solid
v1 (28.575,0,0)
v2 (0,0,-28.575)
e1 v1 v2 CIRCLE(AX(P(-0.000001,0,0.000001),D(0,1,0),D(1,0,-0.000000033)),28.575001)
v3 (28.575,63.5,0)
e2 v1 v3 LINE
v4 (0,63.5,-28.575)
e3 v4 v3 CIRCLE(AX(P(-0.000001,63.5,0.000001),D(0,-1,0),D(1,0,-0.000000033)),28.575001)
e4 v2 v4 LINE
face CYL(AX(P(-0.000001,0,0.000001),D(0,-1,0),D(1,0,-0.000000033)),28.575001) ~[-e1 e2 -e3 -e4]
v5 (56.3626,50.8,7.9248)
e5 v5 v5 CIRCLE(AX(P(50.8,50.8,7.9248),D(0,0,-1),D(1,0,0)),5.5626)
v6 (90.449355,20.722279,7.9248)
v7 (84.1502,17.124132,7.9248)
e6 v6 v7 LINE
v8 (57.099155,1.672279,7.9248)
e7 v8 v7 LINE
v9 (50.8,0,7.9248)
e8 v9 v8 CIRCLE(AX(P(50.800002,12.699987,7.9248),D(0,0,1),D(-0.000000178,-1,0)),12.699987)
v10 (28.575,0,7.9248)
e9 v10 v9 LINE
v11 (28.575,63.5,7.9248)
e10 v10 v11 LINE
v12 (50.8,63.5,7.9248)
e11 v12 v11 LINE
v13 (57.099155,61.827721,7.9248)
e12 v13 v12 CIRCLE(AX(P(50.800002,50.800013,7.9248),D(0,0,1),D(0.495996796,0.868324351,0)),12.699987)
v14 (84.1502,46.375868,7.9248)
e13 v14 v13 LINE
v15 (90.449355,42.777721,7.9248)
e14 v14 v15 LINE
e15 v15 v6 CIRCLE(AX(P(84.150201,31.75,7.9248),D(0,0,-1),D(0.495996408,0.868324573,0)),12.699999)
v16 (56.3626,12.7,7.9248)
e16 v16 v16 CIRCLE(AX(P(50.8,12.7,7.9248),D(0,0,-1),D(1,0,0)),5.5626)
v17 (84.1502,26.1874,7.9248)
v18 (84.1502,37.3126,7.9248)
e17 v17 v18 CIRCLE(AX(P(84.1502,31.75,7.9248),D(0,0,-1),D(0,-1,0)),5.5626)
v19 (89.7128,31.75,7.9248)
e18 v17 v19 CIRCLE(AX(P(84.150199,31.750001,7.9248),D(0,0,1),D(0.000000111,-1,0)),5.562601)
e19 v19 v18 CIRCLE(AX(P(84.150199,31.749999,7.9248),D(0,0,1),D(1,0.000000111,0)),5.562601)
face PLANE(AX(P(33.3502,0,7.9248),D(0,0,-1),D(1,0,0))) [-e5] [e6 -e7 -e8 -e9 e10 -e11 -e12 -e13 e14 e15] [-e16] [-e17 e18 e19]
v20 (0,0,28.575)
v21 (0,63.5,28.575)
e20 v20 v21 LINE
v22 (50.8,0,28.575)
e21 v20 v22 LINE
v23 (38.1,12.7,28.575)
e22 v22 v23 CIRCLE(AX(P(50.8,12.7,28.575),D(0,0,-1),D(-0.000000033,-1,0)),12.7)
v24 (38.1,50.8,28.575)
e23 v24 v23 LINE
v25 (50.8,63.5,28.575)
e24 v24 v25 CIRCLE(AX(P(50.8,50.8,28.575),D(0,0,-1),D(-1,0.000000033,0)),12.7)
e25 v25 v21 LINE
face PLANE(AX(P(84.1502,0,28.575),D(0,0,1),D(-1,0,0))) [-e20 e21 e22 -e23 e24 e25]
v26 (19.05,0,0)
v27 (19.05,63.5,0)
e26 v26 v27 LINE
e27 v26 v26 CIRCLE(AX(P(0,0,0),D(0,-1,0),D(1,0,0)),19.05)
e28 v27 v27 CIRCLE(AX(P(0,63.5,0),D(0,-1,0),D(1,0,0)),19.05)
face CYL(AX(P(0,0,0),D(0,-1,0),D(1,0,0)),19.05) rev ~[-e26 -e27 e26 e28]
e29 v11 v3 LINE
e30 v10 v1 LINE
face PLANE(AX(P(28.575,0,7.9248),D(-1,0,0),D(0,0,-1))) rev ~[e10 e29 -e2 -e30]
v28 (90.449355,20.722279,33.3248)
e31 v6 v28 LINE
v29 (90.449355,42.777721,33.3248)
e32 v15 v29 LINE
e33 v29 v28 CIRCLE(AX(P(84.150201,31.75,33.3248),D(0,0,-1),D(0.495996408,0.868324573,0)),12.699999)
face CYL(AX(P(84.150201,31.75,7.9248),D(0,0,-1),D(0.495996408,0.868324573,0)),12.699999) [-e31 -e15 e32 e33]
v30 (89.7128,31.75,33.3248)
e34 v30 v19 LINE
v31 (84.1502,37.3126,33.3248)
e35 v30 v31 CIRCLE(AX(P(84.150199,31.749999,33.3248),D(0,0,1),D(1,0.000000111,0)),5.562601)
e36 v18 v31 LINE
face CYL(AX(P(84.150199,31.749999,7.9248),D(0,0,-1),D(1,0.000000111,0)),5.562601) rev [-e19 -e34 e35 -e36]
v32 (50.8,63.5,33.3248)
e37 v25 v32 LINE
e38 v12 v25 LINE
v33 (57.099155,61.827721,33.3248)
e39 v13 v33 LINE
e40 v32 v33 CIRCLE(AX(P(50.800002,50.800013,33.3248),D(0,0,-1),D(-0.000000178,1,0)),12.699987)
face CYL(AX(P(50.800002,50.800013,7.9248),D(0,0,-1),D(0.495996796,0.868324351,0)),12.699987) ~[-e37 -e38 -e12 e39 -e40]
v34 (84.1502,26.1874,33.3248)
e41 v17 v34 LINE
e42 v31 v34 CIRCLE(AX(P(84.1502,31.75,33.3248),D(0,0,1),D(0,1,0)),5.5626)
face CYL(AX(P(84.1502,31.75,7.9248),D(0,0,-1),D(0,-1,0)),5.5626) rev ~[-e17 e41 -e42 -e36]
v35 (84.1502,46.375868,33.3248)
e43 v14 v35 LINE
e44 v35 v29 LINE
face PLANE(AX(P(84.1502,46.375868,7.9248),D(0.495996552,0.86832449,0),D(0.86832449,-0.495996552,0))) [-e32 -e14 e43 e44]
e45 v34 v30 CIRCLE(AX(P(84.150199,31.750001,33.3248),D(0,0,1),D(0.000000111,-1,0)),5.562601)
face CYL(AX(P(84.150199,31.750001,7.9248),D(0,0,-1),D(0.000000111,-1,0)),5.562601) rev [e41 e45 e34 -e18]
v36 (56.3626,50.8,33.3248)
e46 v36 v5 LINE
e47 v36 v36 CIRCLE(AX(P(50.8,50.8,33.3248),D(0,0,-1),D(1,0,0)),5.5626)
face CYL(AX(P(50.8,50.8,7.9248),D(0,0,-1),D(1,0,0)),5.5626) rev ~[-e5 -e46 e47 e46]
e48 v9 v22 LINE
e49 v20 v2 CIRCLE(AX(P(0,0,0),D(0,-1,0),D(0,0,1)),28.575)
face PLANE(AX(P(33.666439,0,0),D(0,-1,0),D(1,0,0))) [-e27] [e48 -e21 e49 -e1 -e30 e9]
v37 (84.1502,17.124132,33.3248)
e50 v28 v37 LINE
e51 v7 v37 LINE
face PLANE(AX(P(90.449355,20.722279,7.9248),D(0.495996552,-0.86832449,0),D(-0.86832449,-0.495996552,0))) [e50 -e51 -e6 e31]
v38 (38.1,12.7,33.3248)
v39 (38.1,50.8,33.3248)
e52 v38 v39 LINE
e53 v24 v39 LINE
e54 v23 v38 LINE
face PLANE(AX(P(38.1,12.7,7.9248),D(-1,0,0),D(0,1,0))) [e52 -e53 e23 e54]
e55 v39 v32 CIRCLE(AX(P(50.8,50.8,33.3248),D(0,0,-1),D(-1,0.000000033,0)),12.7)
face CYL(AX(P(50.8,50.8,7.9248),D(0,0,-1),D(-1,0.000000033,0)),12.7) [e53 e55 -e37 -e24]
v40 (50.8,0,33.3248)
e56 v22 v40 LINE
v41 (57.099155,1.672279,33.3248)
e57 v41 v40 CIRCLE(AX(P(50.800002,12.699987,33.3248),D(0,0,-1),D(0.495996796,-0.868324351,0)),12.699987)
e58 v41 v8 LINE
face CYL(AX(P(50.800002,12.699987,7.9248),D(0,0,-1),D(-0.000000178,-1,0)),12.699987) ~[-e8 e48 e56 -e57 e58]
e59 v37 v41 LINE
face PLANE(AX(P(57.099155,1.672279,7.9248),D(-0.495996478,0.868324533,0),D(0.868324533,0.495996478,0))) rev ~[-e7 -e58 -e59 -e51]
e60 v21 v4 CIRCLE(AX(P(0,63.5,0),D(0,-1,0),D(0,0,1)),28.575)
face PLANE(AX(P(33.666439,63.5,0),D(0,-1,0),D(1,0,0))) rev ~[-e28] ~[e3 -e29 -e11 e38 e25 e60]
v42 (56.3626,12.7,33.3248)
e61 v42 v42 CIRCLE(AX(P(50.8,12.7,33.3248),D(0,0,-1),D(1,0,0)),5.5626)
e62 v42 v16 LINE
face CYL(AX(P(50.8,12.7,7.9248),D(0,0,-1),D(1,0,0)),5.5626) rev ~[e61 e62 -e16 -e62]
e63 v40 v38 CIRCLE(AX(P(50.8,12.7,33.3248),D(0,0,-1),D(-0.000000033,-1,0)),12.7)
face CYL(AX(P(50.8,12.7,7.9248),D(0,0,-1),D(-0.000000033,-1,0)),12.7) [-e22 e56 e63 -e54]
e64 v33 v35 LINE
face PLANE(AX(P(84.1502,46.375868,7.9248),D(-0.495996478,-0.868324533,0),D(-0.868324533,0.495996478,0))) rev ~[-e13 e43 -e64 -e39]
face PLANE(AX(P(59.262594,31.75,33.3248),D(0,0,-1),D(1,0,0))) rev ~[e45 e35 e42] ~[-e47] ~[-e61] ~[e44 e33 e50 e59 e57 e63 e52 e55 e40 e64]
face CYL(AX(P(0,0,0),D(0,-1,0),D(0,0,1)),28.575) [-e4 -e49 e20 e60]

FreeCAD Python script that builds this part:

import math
import FreeCAD as App
import Part
import Sketcher
Q = App.Units.Quantity

doc = App.newDocument("Part")
body = doc.addObject("PartDesign::Body", "Body")

sketch1 = body.newObject("Sketcher::SketchObject", "Sketch")
sketch1.AttachmentSupport = (doc.getObject("XZ_Plane"), [""])
sketch1.MapMode = "FlatFace"
sketch1.addGeometry([
    Part.LineSegment(App.Vector(84, 29, 0), App.Vector(0, 29, 0)),
    Part.ArcOfCircle(Part.Circle(App.Vector(0, 0, 0), App.Vector(0, 0, 1), 29), math.radians(90), math.radians(270)),
    Part.LineSegment(App.Vector(0, -29, 0), App.Vector(84, -29, 0)),
    Part.LineSegment(App.Vector(84, -29, 0), App.Vector(84, 29, 0)),
    Part.Circle(App.Vector(0, 0, 0), App.Vector(0, 0, 1), 19),
], False)
sketch1.addConstraint([
    Sketcher.Constraint("Tangent", 0, 2, 1, 1),
    Sketcher.Constraint("Tangent", 1, 2, 2, 1),
    Sketcher.Constraint("Coincident", 2, 2, 3, 1),
    Sketcher.Constraint("Coincident", 3, 2, 0, 1),
    Sketcher.Constraint("Horizontal", 0),
    Sketcher.Constraint("Horizontal", 2),
    Sketcher.Constraint("Vertical", 3),
    Sketcher.Constraint("Coincident", 1, 3, -1, 1),
    Sketcher.Constraint("Coincident", 4, 3, -1, 1),
    Sketcher.Constraint("Diameter", 4, Q("1.5 in")),
    Sketcher.Constraint("Radius", 1, Q("1.125 in")),
    Sketcher.Constraint("DistanceX", 0, 2, 0, 1, Q("3.313 in")),
])
pad1 = body.newObject("PartDesign::Pad", "Pad")
pad1.Profile = sketch1
pad1.Length = Q("2.5 in")
pad1.Reversed = True

sketch2 = body.newObject("Sketcher::SketchObject", "Sketch001")
sketch2.AttachmentSupport = (doc.getObject("XZ_Plane"), [""])
sketch2.MapMode = "FlatFace"
sketch2.addGeometry([
    Part.LineSegment(App.Vector(33, 8, 0), App.Vector(33, -29, 0)),
    Part.LineSegment(App.Vector(33, -29, 0), App.Vector(84, -29, 0)),
    Part.LineSegment(App.Vector(84, -29, 0), App.Vector(84, 8, 0)),
    Part.LineSegment(App.Vector(84, 8, 0), App.Vector(33, 8, 0)),
], False)
sketch2.addConstraint([
    Sketcher.Constraint("Coincident", 0, 2, 1, 1),
    Sketcher.Constraint("Coincident", 1, 2, 2, 1),
    Sketcher.Constraint("Coincident", 2, 2, 3, 1),
    Sketcher.Constraint("Coincident", 3, 2, 0, 1),
    Sketcher.Constraint("Vertical", 0),
    Sketcher.Constraint("Horizontal", 1),
    Sketcher.Constraint("Vertical", 2),
    Sketcher.Constraint("Horizontal", 3),
    Sketcher.Constraint("DistanceX", 1, 1, 1, 2, Q("2 in")),
    Sketcher.Constraint("DistanceY", 0, 2, 0, 1, Q("1.437 in")),
    Sketcher.Constraint("DistanceX", -1, 1, 0, 2, Q("1.313 in")),
    Sketcher.Constraint("DistanceY", 0, 2, -1, 1, Q("1.125 in")),
])
pocket1 = body.newObject("PartDesign::Pocket", "Pocket")
pocket1.Profile = sketch2
pocket1.Type = "ThroughAll"

sketch3 = body.newObject("Sketcher::SketchObject", "Sketch002")
sketch3.AttachmentSupport = (doc.getObject("XZ_Plane"), [""])
sketch3.MapMode = "FlatFace"
sketch3.addGeometry([
    Part.ArcOfCircle(Part.Circle(App.Vector(0, 0, 0), App.Vector(0, 0, 1), 28.6), math.radians(-90), math.radians(0)),
    Part.LineSegment(App.Vector(0, -28.6, 0), App.Vector(33.4, -28.6, 0)),
    Part.LineSegment(App.Vector(33.4, -28.6, 0), App.Vector(33.4, 7.9, 0)),
    Part.LineSegment(App.Vector(33.4, 7.9, 0), App.Vector(28.6, 7.9, 0)),
    Part.LineSegment(App.Vector(28.6, 7.9, 0), App.Vector(28.6, 0, 0)),
], False)
sketch3.addConstraint([
    Sketcher.Constraint("Tangent", 0, 1, 1, 1),
    Sketcher.Constraint("Coincident", 1, 2, 2, 1),
    Sketcher.Constraint("Coincident", 2, 2, 3, 1),
    Sketcher.Constraint("Coincident", 3, 2, 4, 1),
    Sketcher.Constraint("Tangent", 4, 2, 0, 2),
    Sketcher.Constraint("Horizontal", 1),
    Sketcher.Constraint("Vertical", 2),
    Sketcher.Constraint("Horizontal", 3),
    Sketcher.Constraint("Vertical", 4),
    Sketcher.Constraint("Coincident", 0, 3, -1, 1),
    Sketcher.Constraint("Radius", 0, Q("1.125 in")),
    Sketcher.Constraint("DistanceX", 1, 1, 1, 2, Q("1.313 in")),
    Sketcher.Constraint("DistanceY", 2, 1, 2, 2, Q("1.437 in")),
])
pocket2 = body.newObject("PartDesign::Pocket", "Pocket001")
pocket2.Profile = sketch3
pocket2.Type = "ThroughAll"

sketch4 = body.newObject("Sketcher::SketchObject", "Sketch003")
sketch4.AttachmentSupport = (doc.getObject("XY_Plane"), [""])
sketch4.MapMode = "FlatFace"
sketch4.AttachmentOffset = App.Placement(App.Vector(0, 0, 0.312 * 25.4), App.Rotation())
sketch4.addGeometry([
    Part.LineSegment(App.Vector(57, 62, 0), App.Vector(84, 46, 0)),
    Part.LineSegment(App.Vector(84, 46, 0), App.Vector(90, 43, 0)),
    Part.ArcOfCircle(Part.Circle(App.Vector(84, 32, 0), App.Vector(0, 0, 1), 13), math.radians(-60), math.radians(60)),
    Part.LineSegment(App.Vector(90, 21, 0), App.Vector(84, 17, 0)),
    Part.LineSegment(App.Vector(84, 17, 0), App.Vector(57, 2, 0)),
    Part.ArcOfCircle(Part.Circle(App.Vector(51, 13, 0), App.Vector(0, 0, 1), 13), math.radians(-90), math.radians(-60)),
    Part.ArcOfCircle(Part.Circle(App.Vector(51, 13, 0), App.Vector(0, 0, 1), 13), math.radians(-180), math.radians(-90)),
    Part.LineSegment(App.Vector(38, 13, 0), App.Vector(38, 51, 0)),
    Part.ArcOfCircle(Part.Circle(App.Vector(51, 51, 0), App.Vector(0, 0, 1), 13), math.radians(90), math.radians(180)),
    Part.ArcOfCircle(Part.Circle(App.Vector(51, 51, 0), App.Vector(0, 0, 1), 13), math.radians(60), math.radians(90)),
    Part.ArcOfCircle(Part.Circle(App.Vector(84, 32, 0), App.Vector(0, 0, 1), 6), math.radians(90), math.radians(270)),
    Part.ArcOfCircle(Part.Circle(App.Vector(84, 32, 0), App.Vector(0, 0, 1), 6), math.radians(-90), math.radians(0)),
    Part.ArcOfCircle(Part.Circle(App.Vector(84, 32, 0), App.Vector(0, 0, 1), 6), math.radians(0), math.radians(90)),
    Part.Circle(App.Vector(51, 51, 0), App.Vector(0, 0, 1), 6),
    Part.Circle(App.Vector(51, 13, 0), App.Vector(0, 0, 1), 6),
], False)
sketch4.addConstraint([
    Sketcher.Constraint("Coincident", 0, 2, 1, 1),
    Sketcher.Constraint("Tangent", 1, 2, 2, 2),
    Sketcher.Constraint("Tangent", 2, 1, 3, 1),
    Sketcher.Constraint("Coincident", 3, 2, 4, 1),
    Sketcher.Constraint("Tangent", 4, 2, 5, 2),
    Sketcher.Constraint("Tangent", 5, 1, 6, 2),
    Sketcher.Constraint("Tangent", 6, 1, 7, 1),
    Sketcher.Constraint("Tangent", 7, 2, 8, 2),
    Sketcher.Constraint("Tangent", 8, 1, 9, 2),
    Sketcher.Constraint("Tangent", 9, 1, 0, 1),
    Sketcher.Constraint("Tangent", 10, 2, 11, 1),
    Sketcher.Constraint("Tangent", 11, 2, 12, 1),
    Sketcher.Constraint("Tangent", 12, 2, 10, 1),
    Sketcher.Constraint("Vertical", 7),
    Sketcher.Constraint("Coincident", 10, 3, 2, 3),
    Sketcher.Constraint("Coincident", 13, 3, 8, 3),
    Sketcher.Constraint("Coincident", 14, 3, 6, 3),
    Sketcher.Constraint("Equal", 2, 6),
    Sketcher.Constraint("Equal", 6, 8),
    Sketcher.Constraint("Equal", 5, 9),
    Sketcher.Constraint("Equal", 12, 13),
    Sketcher.Constraint("Equal", 13, 14),
    Sketcher.Constraint("PointOnObject", 5, 1, -1),
    Sketcher.Constraint("Parallel", 0, 1),
    Sketcher.Constraint("Parallel", 3, 4),
    Sketcher.Constraint("Horizontal", 12, 3, 11, 2),
    Sketcher.Constraint("Vertical", 12, 3, 0, 2),
    Sketcher.Constraint("Vertical", 1, 2, 2, 1),
    Sketcher.Constraint("Vertical", 0, 2, 3, 2),
    Sketcher.Constraint("Vertical", 14, 3, 5, 1),
    Sketcher.Constraint("Vertical", 5, 1, 8, 1),
    Sketcher.Constraint("Vertical", 3, 2, 10, 2),
    Sketcher.Constraint("Vertical", 10, 2, 12, 2),
    Sketcher.Constraint("Radius", 2, Q("0.5 in")),
    Sketcher.Constraint("Diameter", 13, Q("0.438 in")),
    Sketcher.Constraint("DistanceY", 7, 1, 7, 2, Q("1.5 in")),
    Sketcher.Constraint("DistanceX", -1, 1, 5, 3, Q("2.0000001 in")),
    Sketcher.Constraint("DistanceY", 4, 2, 2, 1, Q("0.75 in")),
    Sketcher.Constraint("DistanceX", -1, 1, 2, 3, Q("3.313 in")),
])
pad2 = body.newObject("PartDesign::Pad", "Pad001")
pad2.Profile = sketch4
pad2.Length = Q("0.813 in")

sketch5 = body.newObject("Sketcher::SketchObject", "Sketch004")
sketch5.AttachmentSupport = (doc.getObject("XY_Plane"), [""])
sketch5.MapMode = "FlatFace"
sketch5.AttachmentOffset = App.Placement(App.Vector(0, 0, 0.312 * 25.4), App.Rotation())
sketch5.addGeometry([
    Part.Circle(App.Vector(51, 13, 0), App.Vector(0, 0, 1), 6),
    Part.Circle(App.Vector(51, 51, 0), App.Vector(0, 0, 1), 6),
    Part.LineSegment(App.Vector(84, 37, 0), App.Vector(84, 26, 0)),
    Part.ArcOfCircle(Part.Circle(App.Vector(84, 32, 0), App.Vector(0, 0, 1), 6), math.radians(90), math.radians(270)),
], False)
sketch5.addConstraint([
    Sketcher.Constraint("Coincident", 2, 1, 3, 1),
    Sketcher.Constraint("Coincident", 3, 2, 2, 2),
    Sketcher.Constraint("Vertical", 2),
    Sketcher.Constraint("Equal", 0, 1),
    Sketcher.Constraint("Equal", 1, 3),
    Sketcher.Constraint("Vertical", 0, 3, 1, 3),
    Sketcher.Constraint("Vertical", 3, 3, 2, 1),
    Sketcher.Constraint("Diameter", 0, Q("0.438 in")),
    Sketcher.Constraint("DistanceX", -1, 1, 0, 3, Q("2 in")),
    Sketcher.Constraint("DistanceY", -1, 1, 1, 3, Q("2 in")),
    Sketcher.Constraint("DistanceY", -1, 1, 0, 3, Q("0.5 in")),
    Sketcher.Constraint("DistanceY", -1, 1, 3, 3, Q("1.25 in")),
    Sketcher.Constraint("DistanceX", -1, 1, 3, 3, Q("3.313 in")),
])
pocket3 = body.newObject("PartDesign::Pocket", "Pocket002")
pocket3.Profile = sketch5
pocket3.Type = "ThroughAll"
pocket3.Reversed = True

sketch6 = body.newObject("Sketcher::SketchObject", "Sketch005")
sketch6.AttachmentSupport = (doc.getObject("XY_Plane"), [""])
sketch6.MapMode = "FlatFace"
sketch6.AttachmentOffset = App.Placement(App.Vector(0, 0, 0.312 * 25.4), App.Rotation())
sketch6.addGeometry([
    Part.LineSegment(App.Vector(57, 2, 0), App.Vector(84, 17, 0)),
    Part.LineSegment(App.Vector(84, 17, 0), App.Vector(84, 0, 0)),
    Part.LineSegment(App.Vector(84, 0, 0), App.Vector(51, 0, 0)),
    Part.ArcOfCircle(Part.Circle(App.Vector(51, 13, 0), App.Vector(0, 0, 1), 13), math.radians(-90), math.radians(-60)),
    Part.LineSegment(App.Vector(84, 64, 0), App.Vector(84, 46, 0)),
    Part.LineSegment(App.Vector(84, 46, 0), App.Vector(57, 62, 0)),
    Part.ArcOfCircle(Part.Circle(App.Vector(51, 51, 0), App.Vector(0, 0, 1), 13), math.radians(60), math.radians(90)),
    Part.LineSegment(App.Vector(51, 64, 0), App.Vector(84, 64, 0)),
], False)
sketch6.addConstraint([
    Sketcher.Constraint("Coincident", 0, 2, 1, 1),
    Sketcher.Constraint("Coincident", 1, 2, 2, 1),
    Sketcher.Constraint("Tangent", 2, 2, 3, 1),
    Sketcher.Constraint("Tangent", 3, 2, 0, 1),
    Sketcher.Constraint("Coincident", 4, 2, 5, 1),
    Sketcher.Constraint("Tangent", 5, 2, 6, 1),
    Sketcher.Constraint("Tangent", 6, 2, 7, 1),
    Sketcher.Constraint("Coincident", 7, 2, 4, 1),
    Sketcher.Constraint("Vertical", 1),
    Sketcher.Constraint("Horizontal", 2),
    Sketcher.Constraint("Vertical", 4),
    Sketcher.Constraint("Horizontal", 7),
    Sketcher.Constraint("Equal", 3, 6),
    Sketcher.Constraint("PointOnObject", 1, 2, -1),
    Sketcher.Constraint("Vertical", 3, 3, 6, 3),
    Sketcher.Constraint("Vertical", 1, 2, 4, 2),
    Sketcher.Constraint("Vertical", 3, 2, 5, 2),
    Sketcher.Constraint("DistanceX", -1, 1, 3, 3, Q("2.0000001 in")),
    Sketcher.Constraint("DistanceY", -1, 1, 6, 2, Q("2.5 in")),
    Sketcher.Constraint("DistanceX", 2, 2, 2, 1, Q("1.313 in")),
    Sketcher.Constraint("Radius", 3, Q("12.699987 mm")),
    Sketcher.Constraint("DistanceY", 1, 2, 1, 1, Q("17.124132 mm")),
])
pocket4 = body.newObject("PartDesign::Pocket", "Pocket003")
pocket4.Profile = sketch6
pocket4.Length = Q("1 in")
pocket4.Reversed = True

sketch7 = body.newObject("Sketcher::SketchObject", "Sketch006")
sketch7.AttachmentSupport = (doc.getObject("XY_Plane"), [""])
sketch7.MapMode = "FlatFace"
sketch7.AttachmentOffset = App.Placement(App.Vector(0, 0, 0.312 * 25.4), App.Rotation())
sketch7.addGeometry([
    Part.LineSegment(App.Vector(57, 62, 0), App.Vector(84, 46, 0)),
    Part.LineSegment(App.Vector(84, 46, 0), App.Vector(90, 43, 0)),
    Part.ArcOfCircle(Part.Circle(App.Vector(84, 32, 0), App.Vector(0, 0, 1), 13), math.radians(-60), math.radians(60)),
    Part.LineSegment(App.Vector(90, 21, 0), App.Vector(84, 17, 0)),
    Part.LineSegment(App.Vector(84, 17, 0), App.Vector(57, 2, 0)),
    Part.ArcOfCircle(Part.Circle(App.Vector(51, 13, 0), App.Vector(0, 0, 1), 13), math.radians(-90), math.radians(-60)),
    Part.ArcOfCircle(Part.Circle(App.Vector(51, 13, 0), App.Vector(0, 0, 1), 13), math.radians(-180), math.radians(-90)),
    Part.LineSegment(App.Vector(38, 13, 0), App.Vector(38, 51, 0)),
    Part.ArcOfCircle(Part.Circle(App.Vector(51, 51, 0), App.Vector(0, 0, 1), 13), math.radians(90), math.radians(180)),
    Part.ArcOfCircle(Part.Circle(App.Vector(51, 51, 0), App.Vector(0, 0, 1), 13), math.radians(60), math.radians(90)),
    Part.ArcOfCircle(Part.Circle(App.Vector(84, 32, 0), App.Vector(0, 0, 1), 6), math.radians(90), math.radians(270)),
    Part.ArcOfCircle(Part.Circle(App.Vector(84, 32, 0), App.Vector(0, 0, 1), 6), math.radians(-90), math.radians(0)),
    Part.ArcOfCircle(Part.Circle(App.Vector(84, 32, 0), App.Vector(0, 0, 1), 6), math.radians(0), math.radians(90)),
    Part.Circle(App.Vector(51, 51, 0), App.Vector(0, 0, 1), 6),
    Part.Circle(App.Vector(51, 13, 0), App.Vector(0, 0, 1), 6),
], False)
sketch7.addConstraint([
    Sketcher.Constraint("Coincident", 0, 2, 1, 1),
    Sketcher.Constraint("Tangent", 1, 2, 2, 2),
    Sketcher.Constraint("Tangent", 2, 1, 3, 1),
    Sketcher.Constraint("Coincident", 3, 2, 4, 1),
    Sketcher.Constraint("Tangent", 4, 2, 5, 2),
    Sketcher.Constraint("Tangent", 5, 1, 6, 2),
    Sketcher.Constraint("Tangent", 6, 1, 7, 1),
    Sketcher.Constraint("Tangent", 7, 2, 8, 2),
    Sketcher.Constraint("Tangent", 8, 1, 9, 2),
    Sketcher.Constraint("Tangent", 9, 1, 0, 1),
    Sketcher.Constraint("Tangent", 10, 2, 11, 1),
    Sketcher.Constraint("Tangent", 11, 2, 12, 1),
    Sketcher.Constraint("Tangent", 12, 2, 10, 1),
    Sketcher.Constraint("Vertical", 7),
    Sketcher.Constraint("Coincident", 10, 3, 2, 3),
    Sketcher.Constraint("Coincident", 13, 3, 8, 3),
    Sketcher.Constraint("Coincident", 14, 3, 6, 3),
    Sketcher.Constraint("Equal", 2, 6),
    Sketcher.Constraint("Equal", 6, 8),
    Sketcher.Constraint("Equal", 5, 9),
    Sketcher.Constraint("Equal", 12, 13),
    Sketcher.Constraint("Equal", 13, 14),
    Sketcher.Constraint("PointOnObject", 5, 1, -1),
    Sketcher.Constraint("Parallel", 0, 1),
    Sketcher.Constraint("Parallel", 3, 4),
    Sketcher.Constraint("Horizontal", 12, 3, 11, 2),
    Sketcher.Constraint("Vertical", 12, 3, 0, 2),
    Sketcher.Constraint("Vertical", 1, 2, 2, 1),
    Sketcher.Constraint("Vertical", 0, 2, 3, 2),
    Sketcher.Constraint("Vertical", 14, 3, 5, 1),
    Sketcher.Constraint("Vertical", 5, 1, 8, 1),
    Sketcher.Constraint("Vertical", 3, 2, 10, 2),
    Sketcher.Constraint("Vertical", 10, 2, 12, 2),
    Sketcher.Constraint("Radius", 2, Q("0.5 in")),
    Sketcher.Constraint("Diameter", 13, Q("0.438 in")),
    Sketcher.Constraint("DistanceY", 7, 1, 7, 2, Q("1.5 in")),
    Sketcher.Constraint("DistanceX", -1, 1, 5, 3, Q("2.0000001 in")),
    Sketcher.Constraint("DistanceY", 4, 2, 2, 1, Q("0.75 in")),
    Sketcher.Constraint("DistanceX", -1, 1, 2, 3, Q("3.313 in")),
])
pad3 = body.newObject("PartDesign::Pad", "Pad002")
pad3.Profile = sketch7
pad3.Length = Q("1 in")

doc.recompute()
